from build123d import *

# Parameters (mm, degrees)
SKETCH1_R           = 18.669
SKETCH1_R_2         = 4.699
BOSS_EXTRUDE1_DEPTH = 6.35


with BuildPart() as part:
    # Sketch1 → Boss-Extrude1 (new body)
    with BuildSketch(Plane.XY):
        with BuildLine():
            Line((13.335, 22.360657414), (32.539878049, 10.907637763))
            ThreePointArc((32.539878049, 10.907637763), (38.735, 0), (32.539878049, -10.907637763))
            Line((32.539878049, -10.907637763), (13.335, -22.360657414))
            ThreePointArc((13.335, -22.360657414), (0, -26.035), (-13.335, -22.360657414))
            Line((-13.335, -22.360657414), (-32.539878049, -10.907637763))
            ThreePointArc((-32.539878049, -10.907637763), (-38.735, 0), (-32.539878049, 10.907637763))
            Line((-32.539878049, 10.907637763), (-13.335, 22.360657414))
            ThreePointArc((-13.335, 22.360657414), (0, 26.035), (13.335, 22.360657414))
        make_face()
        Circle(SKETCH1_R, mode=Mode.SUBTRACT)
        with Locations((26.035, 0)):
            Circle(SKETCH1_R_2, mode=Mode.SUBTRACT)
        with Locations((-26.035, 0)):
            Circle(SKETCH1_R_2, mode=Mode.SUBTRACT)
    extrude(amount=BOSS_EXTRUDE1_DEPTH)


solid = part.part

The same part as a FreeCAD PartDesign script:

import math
import FreeCAD as App
import Part
import Sketcher
from FreeCAD import Vector
Q = App.Units.Quantity

doc = App.newDocument("Part")
body = doc.addObject("PartDesign::Body", "Body")

sketch1 = body.newObject("Sketcher::SketchObject", "Sketch")
sketch1.AttachmentSupport = (doc.getObject("XY_Plane"), [""])
sketch1.MapMode = "FlatFace"
sketch1.addGeometry([
    Part.LineSegment(Vector(32.5, 10.9, 0), Vector(13.3, 22.4, 0)),
    Part.ArcOfCircle(Part.Circle(Vector(0, 0, 0), Vector(0, 0, 1), 26), math.radians(59), math.radians(121)),
    Part.LineSegment(Vector(-13.3, 22.4, 0), Vector(-32.5, 10.9, 0)),
    Part.ArcOfCircle(Part.Circle(Vector(-26, 0, 0), Vector(0, 0, 1), 12.7), math.radians(121), math.radians(239)),
    Part.LineSegment(Vector(-32.5, -10.9, 0), Vector(-13.3, -22.4, 0)),
    Part.ArcOfCircle(Part.Circle(Vector(0, 0, 0), Vector(0, 0, 1), 26), math.radians(-121), math.radians(-59)),
    Part.LineSegment(Vector(13.3, -22.4, 0), Vector(32.5, -10.9, 0)),
    Part.ArcOfCircle(Part.Circle(Vector(26, 0, 0), Vector(0, 0, 1), 12.7), math.radians(-59), math.radians(59)),
    Part.Circle(Vector(26, 0, 0), Vector(0, 0, 1), 4.7),
    Part.Circle(Vector(0, 0, 0), Vector(0, 0, 1), 18.7),
    Part.Circle(Vector(-26, 0, 0), Vector(0, 0, 1), 4.7),
], False)
sketch1.addConstraint([
    Sketcher.Constraint("Tangent", 0, 2, 1, 1),
    Sketcher.Constraint("Tangent", 1, 2, 2, 1),
    Sketcher.Constraint("Tangent", 2, 2, 3, 1),
    Sketcher.Constraint("Tangent", 3, 2, 4, 1),
    Sketcher.Constraint("Tangent", 4, 2, 5, 1),
    Sketcher.Constraint("Tangent", 5, 2, 6, 1),
    Sketcher.Constraint("Tangent", 6, 2, 7, 1),
    Sketcher.Constraint("Tangent", 7, 2, 0, 1),
    Sketcher.Constraint("Coincident", 1, 3, -1, 1),
    Sketcher.Constraint("Coincident", 5, 3, -1, 1),
    Sketcher.Constraint("Coincident", 9, 3, -1, 1),
    Sketcher.Constraint("Coincident", 8, 3, 7, 3),
    Sketcher.Constraint("Coincident", 10, 3, 3, 3),
    Sketcher.Constraint("Equal", 1, 5),
    Sketcher.Constraint("Equal", 3, 7),
    Sketcher.Constraint("Equal", 8, 10),
    Sketcher.Constraint("Symmetric", 3, 3, 7, 3, -1, 1),
    Sketcher.Constraint("PointOnObject", 3, 3, -1),
    Sketcher.Constraint("Radius", 3, Q("0.5 in")),
    Sketcher.Constraint("Diameter", 8, Q("0.37 in")),
    Sketcher.Constraint("Diameter", 9, Q("1.47 in")),
    Sketcher.Constraint("Radius", 1, Q("1.025 in")),
    Sketcher.Constraint("DistanceX", 0, 2, 7, 3, Q("0.5 in")),
])
pad1 = body.newObject("PartDesign::Pad", "Pad")
pad1.Profile = sketch1
pad1.Length = Q("0.25 in")

doc.recompute()
